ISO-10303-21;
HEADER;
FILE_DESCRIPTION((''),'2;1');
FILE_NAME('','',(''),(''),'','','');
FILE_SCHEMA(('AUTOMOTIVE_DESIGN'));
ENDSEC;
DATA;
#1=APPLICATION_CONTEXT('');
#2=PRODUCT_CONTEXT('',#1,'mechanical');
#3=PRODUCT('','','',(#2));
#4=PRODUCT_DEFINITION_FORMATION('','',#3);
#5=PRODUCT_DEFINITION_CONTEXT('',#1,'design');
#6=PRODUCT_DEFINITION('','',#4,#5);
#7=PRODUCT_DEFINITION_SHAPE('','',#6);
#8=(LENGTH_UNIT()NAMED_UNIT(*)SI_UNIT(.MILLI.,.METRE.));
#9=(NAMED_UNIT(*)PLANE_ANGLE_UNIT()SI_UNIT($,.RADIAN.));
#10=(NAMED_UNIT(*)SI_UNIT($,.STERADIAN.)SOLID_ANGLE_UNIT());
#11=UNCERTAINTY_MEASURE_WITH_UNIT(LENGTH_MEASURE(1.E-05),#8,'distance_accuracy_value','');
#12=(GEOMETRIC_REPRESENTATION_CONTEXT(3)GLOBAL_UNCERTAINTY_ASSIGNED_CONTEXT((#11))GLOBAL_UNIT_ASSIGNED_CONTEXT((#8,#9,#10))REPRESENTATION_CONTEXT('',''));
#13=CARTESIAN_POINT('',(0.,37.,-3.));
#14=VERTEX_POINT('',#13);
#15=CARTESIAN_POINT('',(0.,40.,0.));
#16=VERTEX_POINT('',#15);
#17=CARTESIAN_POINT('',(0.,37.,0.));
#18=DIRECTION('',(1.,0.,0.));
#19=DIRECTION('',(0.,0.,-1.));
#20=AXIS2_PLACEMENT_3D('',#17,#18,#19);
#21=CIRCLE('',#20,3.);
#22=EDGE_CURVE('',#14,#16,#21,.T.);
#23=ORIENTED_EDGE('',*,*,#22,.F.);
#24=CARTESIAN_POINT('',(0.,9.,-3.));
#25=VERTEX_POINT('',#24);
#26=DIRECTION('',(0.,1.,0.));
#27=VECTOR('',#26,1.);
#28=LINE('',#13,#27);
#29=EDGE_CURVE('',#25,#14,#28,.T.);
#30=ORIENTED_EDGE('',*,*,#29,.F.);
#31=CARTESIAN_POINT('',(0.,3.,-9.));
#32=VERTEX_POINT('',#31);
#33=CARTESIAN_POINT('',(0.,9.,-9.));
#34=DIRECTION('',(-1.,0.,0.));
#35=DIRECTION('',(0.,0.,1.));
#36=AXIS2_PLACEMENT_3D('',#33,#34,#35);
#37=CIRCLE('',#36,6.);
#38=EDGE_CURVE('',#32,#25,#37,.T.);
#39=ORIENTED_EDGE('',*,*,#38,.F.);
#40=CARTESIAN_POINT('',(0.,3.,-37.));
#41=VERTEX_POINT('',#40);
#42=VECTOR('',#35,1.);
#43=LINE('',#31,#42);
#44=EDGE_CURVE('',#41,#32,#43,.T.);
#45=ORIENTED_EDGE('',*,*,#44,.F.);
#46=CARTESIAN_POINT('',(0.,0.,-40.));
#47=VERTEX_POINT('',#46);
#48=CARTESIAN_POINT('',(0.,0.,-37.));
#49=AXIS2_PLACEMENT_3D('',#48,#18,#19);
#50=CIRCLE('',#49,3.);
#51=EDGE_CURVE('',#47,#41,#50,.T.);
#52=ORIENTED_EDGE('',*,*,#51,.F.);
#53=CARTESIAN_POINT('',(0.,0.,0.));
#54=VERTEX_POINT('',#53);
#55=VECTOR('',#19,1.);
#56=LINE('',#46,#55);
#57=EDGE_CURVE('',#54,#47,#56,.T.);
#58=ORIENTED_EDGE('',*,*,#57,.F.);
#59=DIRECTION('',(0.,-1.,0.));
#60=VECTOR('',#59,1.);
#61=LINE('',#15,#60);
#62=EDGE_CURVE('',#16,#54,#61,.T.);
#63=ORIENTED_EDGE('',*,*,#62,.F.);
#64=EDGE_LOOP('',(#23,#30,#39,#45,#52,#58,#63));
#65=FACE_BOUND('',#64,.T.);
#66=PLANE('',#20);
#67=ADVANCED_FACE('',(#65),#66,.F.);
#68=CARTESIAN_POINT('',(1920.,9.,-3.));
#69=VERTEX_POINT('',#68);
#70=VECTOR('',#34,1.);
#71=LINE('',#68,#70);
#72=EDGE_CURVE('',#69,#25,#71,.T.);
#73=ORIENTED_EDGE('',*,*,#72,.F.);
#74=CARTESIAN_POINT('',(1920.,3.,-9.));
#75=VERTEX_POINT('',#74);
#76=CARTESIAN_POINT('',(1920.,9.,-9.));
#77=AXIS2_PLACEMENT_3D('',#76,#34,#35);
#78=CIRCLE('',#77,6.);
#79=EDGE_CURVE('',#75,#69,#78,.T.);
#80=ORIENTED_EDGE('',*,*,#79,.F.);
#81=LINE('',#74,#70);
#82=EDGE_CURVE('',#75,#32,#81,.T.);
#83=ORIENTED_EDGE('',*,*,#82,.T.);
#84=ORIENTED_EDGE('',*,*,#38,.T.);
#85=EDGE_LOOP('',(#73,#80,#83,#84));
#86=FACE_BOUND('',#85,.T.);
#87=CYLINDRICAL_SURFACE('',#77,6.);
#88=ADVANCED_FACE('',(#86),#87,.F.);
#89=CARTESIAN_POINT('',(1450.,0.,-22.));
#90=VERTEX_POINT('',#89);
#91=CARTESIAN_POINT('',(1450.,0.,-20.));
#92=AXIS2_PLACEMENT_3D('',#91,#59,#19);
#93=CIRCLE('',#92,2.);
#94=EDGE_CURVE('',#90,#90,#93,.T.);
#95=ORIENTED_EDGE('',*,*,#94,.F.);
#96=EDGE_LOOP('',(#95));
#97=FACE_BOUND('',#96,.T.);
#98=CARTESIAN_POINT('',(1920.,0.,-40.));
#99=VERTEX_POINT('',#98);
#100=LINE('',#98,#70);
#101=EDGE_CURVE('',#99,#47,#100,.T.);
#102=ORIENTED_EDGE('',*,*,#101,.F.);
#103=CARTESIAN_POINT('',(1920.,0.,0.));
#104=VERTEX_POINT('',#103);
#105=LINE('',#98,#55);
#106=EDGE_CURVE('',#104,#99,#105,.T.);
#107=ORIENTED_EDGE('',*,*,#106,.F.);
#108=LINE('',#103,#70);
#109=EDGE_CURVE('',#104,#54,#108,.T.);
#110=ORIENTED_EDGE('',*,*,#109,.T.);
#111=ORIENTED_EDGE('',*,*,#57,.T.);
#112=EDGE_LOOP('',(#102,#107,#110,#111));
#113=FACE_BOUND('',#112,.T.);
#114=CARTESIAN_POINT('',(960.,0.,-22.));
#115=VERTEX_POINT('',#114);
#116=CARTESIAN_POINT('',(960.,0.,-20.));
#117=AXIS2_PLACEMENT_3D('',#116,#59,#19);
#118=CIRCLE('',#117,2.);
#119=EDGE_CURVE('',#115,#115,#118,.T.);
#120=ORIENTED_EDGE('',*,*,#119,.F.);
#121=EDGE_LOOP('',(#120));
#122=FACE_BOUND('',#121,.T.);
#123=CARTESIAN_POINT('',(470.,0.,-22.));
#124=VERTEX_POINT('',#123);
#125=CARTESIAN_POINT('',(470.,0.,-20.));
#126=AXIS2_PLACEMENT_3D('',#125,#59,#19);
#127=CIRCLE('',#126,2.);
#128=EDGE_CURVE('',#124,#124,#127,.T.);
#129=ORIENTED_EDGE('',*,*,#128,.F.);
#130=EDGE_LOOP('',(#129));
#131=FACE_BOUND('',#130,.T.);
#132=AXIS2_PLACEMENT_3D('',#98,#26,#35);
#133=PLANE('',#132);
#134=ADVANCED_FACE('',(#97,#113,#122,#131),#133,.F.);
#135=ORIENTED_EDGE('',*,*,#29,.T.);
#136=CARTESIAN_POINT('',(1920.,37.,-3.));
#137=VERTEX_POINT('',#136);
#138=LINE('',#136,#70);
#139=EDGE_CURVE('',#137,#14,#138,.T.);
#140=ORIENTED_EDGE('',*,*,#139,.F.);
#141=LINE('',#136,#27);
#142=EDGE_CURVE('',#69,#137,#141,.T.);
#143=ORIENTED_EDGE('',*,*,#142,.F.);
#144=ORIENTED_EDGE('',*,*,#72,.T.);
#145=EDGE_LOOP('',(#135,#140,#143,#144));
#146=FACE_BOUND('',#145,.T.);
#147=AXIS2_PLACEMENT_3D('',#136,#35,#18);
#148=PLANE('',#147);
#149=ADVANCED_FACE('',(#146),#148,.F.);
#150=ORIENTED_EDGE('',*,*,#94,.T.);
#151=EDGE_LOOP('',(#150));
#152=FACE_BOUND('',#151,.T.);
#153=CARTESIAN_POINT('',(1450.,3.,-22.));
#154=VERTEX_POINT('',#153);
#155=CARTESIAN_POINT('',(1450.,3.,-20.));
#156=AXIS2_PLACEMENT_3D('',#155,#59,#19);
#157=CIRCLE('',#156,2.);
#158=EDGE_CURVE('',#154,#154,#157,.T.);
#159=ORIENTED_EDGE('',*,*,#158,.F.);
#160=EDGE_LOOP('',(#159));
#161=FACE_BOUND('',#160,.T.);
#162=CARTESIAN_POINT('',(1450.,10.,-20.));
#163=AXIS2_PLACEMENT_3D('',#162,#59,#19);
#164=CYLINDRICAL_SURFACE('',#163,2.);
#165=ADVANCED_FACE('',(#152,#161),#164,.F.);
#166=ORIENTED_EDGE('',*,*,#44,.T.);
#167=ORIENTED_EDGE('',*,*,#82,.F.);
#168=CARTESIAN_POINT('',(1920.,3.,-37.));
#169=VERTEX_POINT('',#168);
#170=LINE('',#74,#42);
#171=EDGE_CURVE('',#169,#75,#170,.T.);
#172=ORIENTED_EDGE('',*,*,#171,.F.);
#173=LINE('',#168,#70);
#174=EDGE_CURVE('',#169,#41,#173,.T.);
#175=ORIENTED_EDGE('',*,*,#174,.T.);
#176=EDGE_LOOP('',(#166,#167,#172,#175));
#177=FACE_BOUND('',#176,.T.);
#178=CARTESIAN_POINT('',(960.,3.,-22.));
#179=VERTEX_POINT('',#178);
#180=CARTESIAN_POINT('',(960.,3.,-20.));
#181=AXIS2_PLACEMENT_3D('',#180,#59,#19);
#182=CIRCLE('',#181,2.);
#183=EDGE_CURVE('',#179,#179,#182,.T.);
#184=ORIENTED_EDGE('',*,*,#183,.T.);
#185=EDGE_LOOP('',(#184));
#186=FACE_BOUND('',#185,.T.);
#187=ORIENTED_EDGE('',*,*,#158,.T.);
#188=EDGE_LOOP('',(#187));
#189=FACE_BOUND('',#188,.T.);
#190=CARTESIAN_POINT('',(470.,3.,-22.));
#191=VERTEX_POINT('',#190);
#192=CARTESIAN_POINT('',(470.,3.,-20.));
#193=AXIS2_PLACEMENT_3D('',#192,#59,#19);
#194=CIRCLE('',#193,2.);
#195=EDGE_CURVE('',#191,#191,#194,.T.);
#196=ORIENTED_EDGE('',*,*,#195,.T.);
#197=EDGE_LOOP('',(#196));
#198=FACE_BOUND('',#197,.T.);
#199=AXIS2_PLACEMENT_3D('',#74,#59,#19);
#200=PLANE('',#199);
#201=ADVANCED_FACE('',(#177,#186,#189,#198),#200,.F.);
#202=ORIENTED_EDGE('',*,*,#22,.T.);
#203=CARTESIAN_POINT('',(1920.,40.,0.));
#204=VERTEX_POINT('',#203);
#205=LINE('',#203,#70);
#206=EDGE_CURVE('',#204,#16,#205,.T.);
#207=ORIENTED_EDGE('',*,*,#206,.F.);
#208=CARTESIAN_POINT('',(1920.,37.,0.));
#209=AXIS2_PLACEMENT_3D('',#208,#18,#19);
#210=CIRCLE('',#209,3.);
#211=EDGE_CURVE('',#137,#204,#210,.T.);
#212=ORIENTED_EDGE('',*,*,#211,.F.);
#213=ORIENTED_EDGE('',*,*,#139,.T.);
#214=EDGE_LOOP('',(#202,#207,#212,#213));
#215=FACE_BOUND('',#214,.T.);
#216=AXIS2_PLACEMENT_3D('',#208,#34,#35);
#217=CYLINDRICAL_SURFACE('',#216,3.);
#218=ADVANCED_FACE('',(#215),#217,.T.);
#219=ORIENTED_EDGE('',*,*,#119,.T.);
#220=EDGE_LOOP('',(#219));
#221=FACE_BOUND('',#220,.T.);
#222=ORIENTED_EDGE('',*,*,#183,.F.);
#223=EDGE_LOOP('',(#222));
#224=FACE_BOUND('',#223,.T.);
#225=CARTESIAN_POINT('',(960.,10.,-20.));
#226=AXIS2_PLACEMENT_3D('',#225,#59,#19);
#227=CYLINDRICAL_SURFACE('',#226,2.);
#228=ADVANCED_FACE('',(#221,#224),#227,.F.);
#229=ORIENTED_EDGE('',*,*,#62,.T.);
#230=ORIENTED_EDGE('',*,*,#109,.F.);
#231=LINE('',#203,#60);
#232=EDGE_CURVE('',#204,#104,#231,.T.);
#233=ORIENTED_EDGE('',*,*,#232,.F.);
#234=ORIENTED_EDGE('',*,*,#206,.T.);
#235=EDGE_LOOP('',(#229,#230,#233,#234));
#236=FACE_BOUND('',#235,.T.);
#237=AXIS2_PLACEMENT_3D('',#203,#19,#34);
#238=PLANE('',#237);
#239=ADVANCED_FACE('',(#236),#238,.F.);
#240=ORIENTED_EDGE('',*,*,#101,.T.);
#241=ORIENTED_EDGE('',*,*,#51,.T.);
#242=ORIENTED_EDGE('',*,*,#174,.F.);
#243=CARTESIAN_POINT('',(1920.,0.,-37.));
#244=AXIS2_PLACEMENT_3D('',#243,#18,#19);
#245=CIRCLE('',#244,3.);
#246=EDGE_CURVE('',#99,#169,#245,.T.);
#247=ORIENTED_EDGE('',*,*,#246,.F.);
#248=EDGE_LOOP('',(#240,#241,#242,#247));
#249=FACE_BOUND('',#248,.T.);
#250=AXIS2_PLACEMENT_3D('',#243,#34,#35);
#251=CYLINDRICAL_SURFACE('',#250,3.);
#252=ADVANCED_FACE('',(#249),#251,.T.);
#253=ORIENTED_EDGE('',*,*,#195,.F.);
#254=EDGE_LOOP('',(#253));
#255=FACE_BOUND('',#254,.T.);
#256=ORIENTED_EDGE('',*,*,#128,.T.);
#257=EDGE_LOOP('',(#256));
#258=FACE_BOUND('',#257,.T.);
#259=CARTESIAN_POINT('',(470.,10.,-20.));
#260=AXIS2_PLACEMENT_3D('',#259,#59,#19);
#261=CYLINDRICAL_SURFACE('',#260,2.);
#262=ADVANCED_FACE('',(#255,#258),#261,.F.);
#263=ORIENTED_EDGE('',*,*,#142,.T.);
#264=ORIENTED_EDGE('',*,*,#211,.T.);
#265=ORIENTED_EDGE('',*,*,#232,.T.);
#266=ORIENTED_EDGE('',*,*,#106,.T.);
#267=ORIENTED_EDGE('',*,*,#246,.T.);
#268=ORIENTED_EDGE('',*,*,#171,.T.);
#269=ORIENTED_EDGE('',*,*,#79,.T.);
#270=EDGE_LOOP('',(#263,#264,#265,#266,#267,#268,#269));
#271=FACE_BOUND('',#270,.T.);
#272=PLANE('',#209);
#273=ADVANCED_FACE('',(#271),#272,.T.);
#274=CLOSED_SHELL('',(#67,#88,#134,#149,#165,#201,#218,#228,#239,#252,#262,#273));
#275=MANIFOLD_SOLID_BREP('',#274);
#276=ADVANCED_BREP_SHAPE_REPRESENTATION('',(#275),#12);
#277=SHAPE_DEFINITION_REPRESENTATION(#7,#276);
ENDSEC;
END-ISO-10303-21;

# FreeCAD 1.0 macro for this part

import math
import FreeCAD as App
import Part
import Sketcher

V = App.Vector
Q = App.Units.Quantity

doc = App.newDocument("Part")
params = doc.addObject("Spreadsheet::Sheet", "Params")
for row, (alias, value) in enumerate([
    ("sketch1_radius", "3 mm"),
    ("sketch1_radius2", "6 mm"),
    ("sketch1_width", "40 mm"),
    ("pad1_length", "1920 mm"),
    ("sketch2_diameter", "4 mm"),
    ("pocket1_length", "10 mm"),
], start=1):
    params.set(f"A{row}", alias)
    params.set(f"B{row}", "=" + value)
    params.setAlias(f"B{row}", alias)

body = doc.addObject("PartDesign::Body", "Body")

sketch1 = body.newObject("Sketcher::SketchObject", "Sketch")
sketch1.AttachmentSupport = (doc.getObject("YZ_Plane"), [""])
sketch1.MapMode = "FlatFace"
sketch1.addGeometry(Part.LineSegment(V(40, 0, 0), V(0, 0, 0)), False)
sketch1.addGeometry(Part.LineSegment(V(0, 0, 0), V(0, -40, 0)), False)
sketch1.addGeometry(Part.ArcOfCircle(Part.Circle(V(0, -37, 0), V(0, 0, 1), 3), math.radians(-90), math.radians(0)), False)
sketch1.addGeometry(Part.LineSegment(V(3, -37, 0), V(3, -9, 0)), False)
sketch1.addGeometry(Part.ArcOfCircle(Part.Circle(V(9, -9, 0), V(0, 0, 1), 6), math.radians(90), math.radians(180)), False)
sketch1.addGeometry(Part.LineSegment(V(9, -3, 0), V(37, -3, 0)), False)
sketch1.addGeometry(Part.ArcOfCircle(Part.Circle(V(37, 0, 0), V(0, 0, 1), 3), math.radians(-90), math.radians(0)), False)
sketch1.addConstraint(Sketcher.Constraint("Coincident", 0, 2, 1, 1))
sketch1.addConstraint(Sketcher.Constraint("Coincident", 1, 2, 2, 1))
sketch1.addConstraint(Sketcher.Constraint("Tangent", 2, 2, 3, 1))
sketch1.addConstraint(Sketcher.Constraint("Tangent", 3, 2, 4, 2))
sketch1.addConstraint(Sketcher.Constraint("Tangent", 4, 1, 5, 1))
sketch1.addConstraint(Sketcher.Constraint("Tangent", 5, 2, 6, 1))
sketch1.addConstraint(Sketcher.Constraint("Coincident", 6, 2, 0, 1))
sketch1.addConstraint(Sketcher.Constraint("Horizontal", 0))
sketch1.addConstraint(Sketcher.Constraint("Vertical", 1))
sketch1.addConstraint(Sketcher.Constraint("Vertical", 3))
sketch1.addConstraint(Sketcher.Constraint("Horizontal", 5))
sketch1.addConstraint(Sketcher.Constraint("Coincident", 0, 2, -1, 1))
sketch1.addConstraint(Sketcher.Constraint("Equal", 2, 6))
sketch1.addConstraint(Sketcher.Constraint("PointOnObject", 2, 3, -2))
sketch1.addConstraint(Sketcher.Constraint("PointOnObject", 6, 3, -1))
sketch1.addConstraint(Sketcher.Constraint("Equal", 0, 1))
sketch1.addConstraint(Sketcher.Constraint("Radius", 2, Q("3 mm")))
sketch1.addConstraint(Sketcher.Constraint("Radius", 4, Q("6 mm")))
sketch1.addConstraint(Sketcher.Constraint("DistanceX", 0, 2, 0, 1, Q("40 mm")))
sketch1.setExpression("Constraints[16]", "Params.sketch1_radius")
sketch1.setExpression("Constraints[17]", "Params.sketch1_radius2")
sketch1.setExpression("Constraints[18]", "Params.sketch1_width")
pad1 = body.newObject("PartDesign::Pad", "Pad")
pad1.Profile = sketch1
pad1.setExpression("Length", "Params.pad1_length")

sketch2 = body.newObject("Sketcher::SketchObject", "Sketch001")
sketch2.AttachmentSupport = (doc.getObject("XZ_Plane"), [""])
sketch2.MapMode = "FlatFace"
sketch2.addGeometry(Part.Circle(V(960, -20, 0), V(0, 0, 1), 2), False)
sketch2.addGeometry(Part.Circle(V(470, -20, 0), V(0, 0, 1), 2), False)
sketch2.addGeometry(Part.Circle(V(1450, -20, 0), V(0, 0, 1), 2), False)
sketch2.addConstraint(Sketcher.Constraint("Equal", 0, 1))
sketch2.addConstraint(Sketcher.Constraint("Equal", 1, 2))
sketch2.addConstraint(Sketcher.Constraint("Horizontal", 0, 3, 1, 3))
sketch2.addConstraint(Sketcher.Constraint("Horizontal", 1, 3, 2, 3))
sketch2.addConstraint(Sketcher.Constraint("Diameter", 0, Q("4 mm")))
sketch2.addConstraint(Sketcher.Constraint("DistanceX", -1, 1, 0, 3, Q("960 mm")))
sketch2.addConstraint(Sketcher.Constraint("DistanceY", 0, 3, -1, 1, Q("20 mm")))
sketch2.addConstraint(Sketcher.Constraint("DistanceX", -1, 1, 1, 3, Q("470 mm")))
sketch2.addConstraint(Sketcher.Constraint("DistanceX", -1, 1, 2, 3, Q("1450 mm")))
sketch2.setExpression("Constraints[4]", "Params.sketch2_diameter")
pocket1 = body.newObject("PartDesign::Pocket", "Pocket")
pocket1.Profile = sketch2
pocket1.setExpression("Length", "Params.pocket1_length")

doc.recompute()
